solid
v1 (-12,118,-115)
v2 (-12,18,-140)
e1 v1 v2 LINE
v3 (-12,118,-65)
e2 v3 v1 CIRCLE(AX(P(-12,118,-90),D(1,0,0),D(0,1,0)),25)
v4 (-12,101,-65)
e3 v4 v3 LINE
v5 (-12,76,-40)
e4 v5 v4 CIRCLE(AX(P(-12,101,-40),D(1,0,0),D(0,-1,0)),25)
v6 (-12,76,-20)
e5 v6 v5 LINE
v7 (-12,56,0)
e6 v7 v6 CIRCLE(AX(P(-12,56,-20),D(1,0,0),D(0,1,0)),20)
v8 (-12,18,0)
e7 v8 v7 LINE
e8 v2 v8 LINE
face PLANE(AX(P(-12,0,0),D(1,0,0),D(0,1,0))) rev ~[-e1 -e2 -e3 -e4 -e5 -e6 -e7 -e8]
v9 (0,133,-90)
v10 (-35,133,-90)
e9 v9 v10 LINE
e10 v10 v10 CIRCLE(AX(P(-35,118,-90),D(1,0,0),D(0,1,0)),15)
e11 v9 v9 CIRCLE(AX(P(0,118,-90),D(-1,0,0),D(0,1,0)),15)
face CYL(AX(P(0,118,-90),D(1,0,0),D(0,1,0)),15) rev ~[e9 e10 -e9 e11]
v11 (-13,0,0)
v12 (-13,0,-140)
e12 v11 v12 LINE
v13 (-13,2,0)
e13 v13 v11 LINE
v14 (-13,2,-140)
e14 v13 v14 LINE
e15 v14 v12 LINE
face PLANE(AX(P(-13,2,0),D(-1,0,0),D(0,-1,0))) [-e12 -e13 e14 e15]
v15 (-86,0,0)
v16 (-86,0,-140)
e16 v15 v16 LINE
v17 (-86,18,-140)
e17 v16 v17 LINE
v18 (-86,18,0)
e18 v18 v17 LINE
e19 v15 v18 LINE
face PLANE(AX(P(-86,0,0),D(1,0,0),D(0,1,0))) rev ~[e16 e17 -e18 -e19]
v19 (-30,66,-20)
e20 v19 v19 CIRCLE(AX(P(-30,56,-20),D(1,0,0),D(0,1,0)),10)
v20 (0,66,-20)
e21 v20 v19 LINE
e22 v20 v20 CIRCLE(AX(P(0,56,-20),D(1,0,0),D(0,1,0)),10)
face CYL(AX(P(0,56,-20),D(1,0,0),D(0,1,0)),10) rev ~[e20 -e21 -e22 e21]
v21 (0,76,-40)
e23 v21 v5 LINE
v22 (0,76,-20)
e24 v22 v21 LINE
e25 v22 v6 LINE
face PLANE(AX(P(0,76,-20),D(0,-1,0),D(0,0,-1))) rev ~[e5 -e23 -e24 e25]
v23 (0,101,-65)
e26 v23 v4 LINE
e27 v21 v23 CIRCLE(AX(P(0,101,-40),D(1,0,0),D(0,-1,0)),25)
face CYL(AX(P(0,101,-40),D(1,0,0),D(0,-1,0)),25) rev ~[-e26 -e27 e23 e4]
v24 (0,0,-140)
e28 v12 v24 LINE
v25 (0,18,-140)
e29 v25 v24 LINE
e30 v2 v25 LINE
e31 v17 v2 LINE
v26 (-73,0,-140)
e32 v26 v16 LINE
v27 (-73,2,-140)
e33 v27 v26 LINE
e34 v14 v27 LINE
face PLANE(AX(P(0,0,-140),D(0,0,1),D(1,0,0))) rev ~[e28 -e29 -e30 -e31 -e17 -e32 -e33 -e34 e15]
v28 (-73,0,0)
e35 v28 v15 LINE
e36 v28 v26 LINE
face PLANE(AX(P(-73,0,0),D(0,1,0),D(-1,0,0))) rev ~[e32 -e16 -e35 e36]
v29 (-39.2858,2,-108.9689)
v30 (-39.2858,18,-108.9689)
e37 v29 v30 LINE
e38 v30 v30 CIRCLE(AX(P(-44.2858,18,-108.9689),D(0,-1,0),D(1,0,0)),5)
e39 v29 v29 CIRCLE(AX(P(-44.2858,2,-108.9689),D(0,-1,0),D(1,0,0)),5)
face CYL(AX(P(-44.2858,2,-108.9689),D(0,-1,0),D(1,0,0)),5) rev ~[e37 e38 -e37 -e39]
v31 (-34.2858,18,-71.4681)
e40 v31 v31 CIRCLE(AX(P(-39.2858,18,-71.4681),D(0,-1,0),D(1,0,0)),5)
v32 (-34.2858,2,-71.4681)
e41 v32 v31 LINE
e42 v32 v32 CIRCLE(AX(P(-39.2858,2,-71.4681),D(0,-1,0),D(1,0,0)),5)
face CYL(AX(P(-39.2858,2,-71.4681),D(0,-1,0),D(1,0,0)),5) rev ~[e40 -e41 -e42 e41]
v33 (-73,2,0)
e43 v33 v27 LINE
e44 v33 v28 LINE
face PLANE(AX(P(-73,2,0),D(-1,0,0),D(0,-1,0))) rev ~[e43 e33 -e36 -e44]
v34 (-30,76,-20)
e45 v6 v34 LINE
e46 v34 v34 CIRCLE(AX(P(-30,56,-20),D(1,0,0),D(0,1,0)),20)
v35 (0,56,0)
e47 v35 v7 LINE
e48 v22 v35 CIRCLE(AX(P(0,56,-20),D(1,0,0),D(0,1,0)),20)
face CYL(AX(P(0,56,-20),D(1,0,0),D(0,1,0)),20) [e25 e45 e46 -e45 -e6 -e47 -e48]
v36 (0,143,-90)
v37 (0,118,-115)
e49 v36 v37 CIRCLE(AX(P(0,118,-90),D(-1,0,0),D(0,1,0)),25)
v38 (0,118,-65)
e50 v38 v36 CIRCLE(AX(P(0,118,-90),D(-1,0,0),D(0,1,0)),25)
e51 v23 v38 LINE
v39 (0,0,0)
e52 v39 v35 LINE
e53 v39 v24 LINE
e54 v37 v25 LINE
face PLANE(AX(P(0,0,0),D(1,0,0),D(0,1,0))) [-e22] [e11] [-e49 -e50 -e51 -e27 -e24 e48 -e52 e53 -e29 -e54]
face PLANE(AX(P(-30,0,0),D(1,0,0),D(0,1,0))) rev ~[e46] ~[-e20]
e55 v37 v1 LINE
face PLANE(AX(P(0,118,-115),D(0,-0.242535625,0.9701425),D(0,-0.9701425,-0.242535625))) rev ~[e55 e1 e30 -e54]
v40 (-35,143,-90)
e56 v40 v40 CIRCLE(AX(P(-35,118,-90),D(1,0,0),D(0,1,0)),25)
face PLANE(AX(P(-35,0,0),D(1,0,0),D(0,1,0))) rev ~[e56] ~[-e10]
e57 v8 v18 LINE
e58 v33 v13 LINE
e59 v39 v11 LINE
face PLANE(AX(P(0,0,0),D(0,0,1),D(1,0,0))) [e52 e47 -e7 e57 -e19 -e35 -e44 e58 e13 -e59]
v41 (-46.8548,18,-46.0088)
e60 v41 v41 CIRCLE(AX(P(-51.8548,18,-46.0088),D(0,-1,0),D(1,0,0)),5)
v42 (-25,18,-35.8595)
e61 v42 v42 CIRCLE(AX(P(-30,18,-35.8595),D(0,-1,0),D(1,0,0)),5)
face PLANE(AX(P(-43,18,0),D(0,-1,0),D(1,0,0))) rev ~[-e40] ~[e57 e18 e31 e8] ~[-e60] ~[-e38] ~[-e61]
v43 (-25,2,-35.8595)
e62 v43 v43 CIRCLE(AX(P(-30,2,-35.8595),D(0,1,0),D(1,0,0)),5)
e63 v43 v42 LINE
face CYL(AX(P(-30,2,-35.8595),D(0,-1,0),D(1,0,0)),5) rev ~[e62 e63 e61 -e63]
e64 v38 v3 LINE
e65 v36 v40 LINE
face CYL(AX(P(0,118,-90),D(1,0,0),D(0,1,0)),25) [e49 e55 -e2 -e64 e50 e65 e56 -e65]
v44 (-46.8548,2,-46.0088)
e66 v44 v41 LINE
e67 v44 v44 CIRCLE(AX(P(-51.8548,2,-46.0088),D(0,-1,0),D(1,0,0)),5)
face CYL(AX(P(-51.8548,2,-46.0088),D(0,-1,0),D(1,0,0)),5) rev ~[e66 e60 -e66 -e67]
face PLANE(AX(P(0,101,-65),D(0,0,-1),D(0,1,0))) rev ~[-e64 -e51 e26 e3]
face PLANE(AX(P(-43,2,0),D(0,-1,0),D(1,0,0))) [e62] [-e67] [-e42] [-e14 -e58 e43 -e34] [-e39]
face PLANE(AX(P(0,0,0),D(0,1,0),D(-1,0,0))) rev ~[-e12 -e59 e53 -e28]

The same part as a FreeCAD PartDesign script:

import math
import FreeCAD as App
import Part
import Sketcher


def add_polygon(sketch, points):
    """Adds a closed chain of lines whose ends are joined by coincident constraints."""
    first, n = sketch.GeometryCount, len(points)
    for a, b in zip(points, points[1:] + points[:1]):
        sketch.addGeometry(Part.LineSegment(App.Vector(*a, 0), App.Vector(*b, 0)), False)
    for i in range(n):
        sketch.addConstraint(Sketcher.Constraint("Coincident", first + i, 2, first + (i + 1) % n, 1))

doc = App.newDocument("Part")
params = doc.addObject("Spreadsheet::Sheet", "Params")
for row, (alias, value) in enumerate([
    ("sketch1_width", "86 mm"),
    ("sketch1_width2", "60 mm"),
    ("sketch1_height", "18 mm"),
    ("sketch1_height2", "2 mm"),
    ("pad1_length", "140 mm"),
    ("sketch2_radius", "25 mm"),
    ("sketch2_radius2", "20 mm"),
    ("sketch2_width", "56 mm"),
    ("sketch2_width2", "18 mm"),
    ("sketch2_height", "140 mm"),
    ("pad2_length", "12 mm"),
    ("sketch3_diameter", "40 mm"),
    ("sketch3_diameter2", "20 mm"),
    ("pad3_length", "30 mm"),
    ("sketch4_diameter", "50 mm"),
    ("sketch4_diameter2", "30 mm"),
    ("pad4_length", "35 mm"),
    ("sketch5_diameter", "10 mm"),
    ("pocket1_length", "18 mm"),
], start=1):
    params.set(f"A{row}", alias)
    params.set(f"B{row}", "=" + value)
    params.setAlias(f"B{row}", alias)

body = doc.addObject("PartDesign::Body", "Body")

# Sketch on XY plane
sketch1 = body.newObject("Sketcher::SketchObject", "Sketch")
sketch1.AttachmentSupport = (doc.getObject("XY_Plane"), [""])
sketch1.MapMode = "FlatFace"
add_polygon(sketch1, [(-13, 0), (0, 0), (0, 18), (-86, 18), (-86, 0), (-73, 0), (-73, 2), (-13, 2)])  # lines 0-7
sketch1.addConstraint(Sketcher.Constraint("Horizontal", 0))
sketch1.addConstraint(Sketcher.Constraint("Vertical", 1))
sketch1.addConstraint(Sketcher.Constraint("Horizontal", 2))
sketch1.addConstraint(Sketcher.Constraint("Vertical", 3))
sketch1.addConstraint(Sketcher.Constraint("Horizontal", 4))
sketch1.addConstraint(Sketcher.Constraint("Vertical", 5))
sketch1.addConstraint(Sketcher.Constraint("Horizontal", 6))
sketch1.addConstraint(Sketcher.Constraint("Vertical", 7))
sketch1.addConstraint(Sketcher.Constraint("Coincident", 0, 2, -1, 1))
sketch1.addConstraint(Sketcher.Constraint("PointOnObject", 3, 2, -1))
sketch1.addConstraint(Sketcher.Constraint("Equal", 0, 4))
sketch1.addConstraint(Sketcher.Constraint("DistanceX", 2, 2, 2, 1, 86.0))
sketch1.addConstraint(Sketcher.Constraint("DistanceX", 6, 1, 6, 2, 60.0))
sketch1.addConstraint(Sketcher.Constraint("DistanceY", 1, 1, 1, 2, 18.0))
sketch1.addConstraint(Sketcher.Constraint("DistanceY", 5, 1, 5, 2, 2.0))
sketch1.setExpression("Constraints[19]", "Params.sketch1_width")
sketch1.setExpression("Constraints[20]", "Params.sketch1_width2")
sketch1.setExpression("Constraints[21]", "Params.sketch1_height")
sketch1.setExpression("Constraints[22]", "Params.sketch1_height2")
pad1 = body.newObject("PartDesign::Pad", "Pad")
pad1.Profile = sketch1
pad1.setExpression("Length", "Params.pad1_length")
pad1.Reversed = True

# Sketch on YZ plane
sketch2 = body.newObject("Sketcher::SketchObject", "Sketch001")
sketch2.AttachmentSupport = (doc.getObject("YZ_Plane"), [""])
sketch2.MapMode = "FlatFace"
sketch2.addGeometry(Part.LineSegment(App.Vector(56, 0, 0), App.Vector(0, 0, 0)), False)
sketch2.addGeometry(Part.LineSegment(App.Vector(0, 0, 0), App.Vector(0, -140, 0)), False)
sketch2.addGeometry(Part.LineSegment(App.Vector(0, -140, 0), App.Vector(18, -140, 0)), False)
sketch2.addGeometry(Part.LineSegment(App.Vector(18, -140, 0), App.Vector(118, -115, 0)), False)
sketch2.addGeometry(Part.ArcOfCircle(Part.Circle(App.Vector(118, -90, 0), App.Vector(0, 0, 1), 25), math.radians(90), math.radians(270)), False)
sketch2.addGeometry(Part.LineSegment(App.Vector(118, -65, 0), App.Vector(101, -65, 0)), False)
sketch2.addGeometry(Part.ArcOfCircle(Part.Circle(App.Vector(101, -40, 0), App.Vector(0, 0, 1), 25), math.radians(180), math.radians(270)), False)
sketch2.addGeometry(Part.LineSegment(App.Vector(76, -40, 0), App.Vector(76, -20, 0)), False)
sketch2.addGeometry(Part.ArcOfCircle(Part.Circle(App.Vector(56, -20, 0), App.Vector(0, 0, 1), 20), math.radians(90), math.radians(360)), False)
sketch2.addConstraint(Sketcher.Constraint("Coincident", 0, 2, 1, 1))
sketch2.addConstraint(Sketcher.Constraint("Coincident", 1, 2, 2, 1))
sketch2.addConstraint(Sketcher.Constraint("Coincident", 2, 2, 3, 1))
sketch2.addConstraint(Sketcher.Constraint("Coincident", 3, 2, 4, 2))
sketch2.addConstraint(Sketcher.Constraint("Tangent", 4, 1, 5, 1))
sketch2.addConstraint(Sketcher.Constraint("Tangent", 5, 2, 6, 2))
sketch2.addConstraint(Sketcher.Constraint("Tangent", 6, 1, 7, 1))
sketch2.addConstraint(Sketcher.Constraint("Tangent", 7, 2, 8, 2))
sketch2.addConstraint(Sketcher.Constraint("Tangent", 8, 1, 0, 1))
sketch2.addConstraint(Sketcher.Constraint("Horizontal", 0))
sketch2.addConstraint(Sketcher.Constraint("Vertical", 1))
sketch2.addConstraint(Sketcher.Constraint("Horizontal", 2))
sketch2.addConstraint(Sketcher.Constraint("Horizontal", 5))
sketch2.addConstraint(Sketcher.Constraint("Vertical", 7))
sketch2.addConstraint(Sketcher.Constraint("Coincident", 0, 2, -1, 1))
sketch2.addConstraint(Sketcher.Constraint("Equal", 4, 6))
sketch2.addConstraint(Sketcher.Constraint("Vertical", 4, 3, 3, 2))
sketch2.addConstraint(Sketcher.Constraint("Radius", 4, 25.0))
sketch2.addConstraint(Sketcher.Constraint("Radius", 8, 20.0))
sketch2.addConstraint(Sketcher.Constraint("DistanceX", 0, 2, 0, 1, 56.0))
sketch2.addConstraint(Sketcher.Constraint("DistanceX", 2, 1, 2, 2, 18.0))
sketch2.addConstraint(Sketcher.Constraint("DistanceY", 1, 2, 1, 1, 140.0))
sketch2.addConstraint(Sketcher.Constraint("DistanceY", 7, 1, 7, 2, 20.0))
sketch2.addConstraint(Sketcher.Constraint("DistanceX", -1, 1, 4, 3, 118.0))
sketch2.setExpression("Constraints[17]", "Params.sketch2_radius")
sketch2.setExpression("Constraints[18]", "Params.sketch2_radius2")
sketch2.setExpression("Constraints[19]", "Params.sketch2_width")
sketch2.setExpression("Constraints[20]", "Params.sketch2_width2")
sketch2.setExpression("Constraints[21]", "Params.sketch2_height")
pad2 = body.newObject("PartDesign::Pad", "Pad001")
pad2.Profile = sketch2
pad2.setExpression("Length", "Params.pad2_length")
pad2.Reversed = True

# Sketch on YZ plane
sketch3 = body.newObject("Sketcher::SketchObject", "Sketch002")
sketch3.AttachmentSupport = (doc.getObject("YZ_Plane"), [""])
sketch3.MapMode = "FlatFace"
sketch3.addGeometry(Part.Circle(App.Vector(56, -20, 0), App.Vector(0, 0, 1), 20), False)
sketch3.addGeometry(Part.Circle(App.Vector(56, -20, 0), App.Vector(0, 0, 1), 10), False)
sketch3.addConstraint(Sketcher.Constraint("Coincident", 1, 3, 0, 3))
sketch3.addConstraint(Sketcher.Constraint("Diameter", 0, 40.0))
sketch3.addConstraint(Sketcher.Constraint("Diameter", 1, 20.0))
sketch3.addConstraint(Sketcher.Constraint("DistanceX", -1, 1, 0, 3, 56.0))
sketch3.addConstraint(Sketcher.Constraint("DistanceY", 0, 3, -1, 1, 20.0))
sketch3.setExpression("Constraints[1]", "Params.sketch3_diameter")
sketch3.setExpression("Constraints[2]", "Params.sketch3_diameter2")
pad3 = body.newObject("PartDesign::Pad", "Pad002")
pad3.Profile = sketch3
pad3.setExpression("Length", "Params.pad3_length")
pad3.Reversed = True

# Sketch on YZ plane
sketch4 = body.newObject("Sketcher::SketchObject", "Sketch003")
sketch4.AttachmentSupport = (doc.getObject("YZ_Plane"), [""])
sketch4.MapMode = "FlatFace"
sketch4.addGeometry(Part.Circle(App.Vector(118, -90, 0), App.Vector(0, 0, 1), 25), False)
sketch4.addGeometry(Part.Circle(App.Vector(118, -90, 0), App.Vector(0, 0, 1), 15), False)
sketch4.addConstraint(Sketcher.Constraint("Coincident", 1, 3, 0, 3))
sketch4.addConstraint(Sketcher.Constraint("Diameter", 0, 50.0))
sketch4.addConstraint(Sketcher.Constraint("Diameter", 1, 30.0))
sketch4.addConstraint(Sketcher.Constraint("DistanceX", -1, 1, 0, 3, 118.0))
sketch4.addConstraint(Sketcher.Constraint("DistanceY", 0, 3, -1, 1, 90.0))
sketch4.setExpression("Constraints[1]", "Params.sketch4_diameter")
sketch4.setExpression("Constraints[2]", "Params.sketch4_diameter2")
pad4 = body.newObject("PartDesign::Pad", "Pad003")
pad4.Profile = sketch4
pad4.setExpression("Length", "Params.pad4_length")
pad4.Reversed = True

# Sketch on XZ plane
sketch5 = body.newObject("Sketcher::SketchObject", "Sketch004")
sketch5.AttachmentSupport = (doc.getObject("XZ_Plane"), [""])
sketch5.MapMode = "FlatFace"
sketch5.AttachmentOffset = App.Placement(App.Vector(0, 0, -2), App.Rotation())
sketch5.addGeometry(Part.Circle(App.Vector(-44, -109, 0), App.Vector(0, 0, 1), 5), False)
sketch5.addGeometry(Part.Circle(App.Vector(-39, -71, 0), App.Vector(0, 0, 1), 5), False)
sketch5.addGeometry(Part.Circle(App.Vector(-52, -46, 0), App.Vector(0, 0, 1), 5), False)
sketch5.addGeometry(Part.Circle(App.Vector(-30, -36, 0), App.Vector(0, 0, 1), 5), False)
sketch5.addConstraint(Sketcher.Constraint("Equal", 0, 1))
sketch5.addConstraint(Sketcher.Constraint("Equal", 1, 2))
sketch5.addConstraint(Sketcher.Constraint("Equal", 2, 3))
sketch5.addConstraint(Sketcher.Constraint("Diameter", 0, 10.0))
sketch5.addConstraint(Sketcher.Constraint("DistanceX", 3, 3, -1, 1, 30.0))
sketch5.addConstraint(Sketcher.Constraint("DistanceX", 0, 3, 1, 3, 5.0))
sketch5.addConstraint(Sketcher.Constraint("DistanceY", 0, 3, 2, 3, 62.96))
sketch5.addConstraint(Sketcher.Constraint("DistanceY", 0, 3, -1, 1, 108.969))
sketch5.addConstraint(Sketcher.Constraint("DistanceY", 1, 3, -1, 1, 71.468))
sketch5.addConstraint(Sketcher.Constraint("DistanceX", 2, 3, 1, 3, 12.569))
sketch5.addConstraint(Sketcher.Constraint("DistanceX", 0, 3, -1, 1, 44.2858))
sketch5.addConstraint(Sketcher.Constraint("DistanceY", 3, 3, -1, 1, 35.8595))
sketch5.setExpression("Constraints[3]", "Params.sketch5_diameter")
pocket1 = body.newObject("PartDesign::Pocket", "Pocket")
pocket1.Profile = sketch5
pocket1.setExpression("Length", "Params.pocket1_length")

doc.recompute()
